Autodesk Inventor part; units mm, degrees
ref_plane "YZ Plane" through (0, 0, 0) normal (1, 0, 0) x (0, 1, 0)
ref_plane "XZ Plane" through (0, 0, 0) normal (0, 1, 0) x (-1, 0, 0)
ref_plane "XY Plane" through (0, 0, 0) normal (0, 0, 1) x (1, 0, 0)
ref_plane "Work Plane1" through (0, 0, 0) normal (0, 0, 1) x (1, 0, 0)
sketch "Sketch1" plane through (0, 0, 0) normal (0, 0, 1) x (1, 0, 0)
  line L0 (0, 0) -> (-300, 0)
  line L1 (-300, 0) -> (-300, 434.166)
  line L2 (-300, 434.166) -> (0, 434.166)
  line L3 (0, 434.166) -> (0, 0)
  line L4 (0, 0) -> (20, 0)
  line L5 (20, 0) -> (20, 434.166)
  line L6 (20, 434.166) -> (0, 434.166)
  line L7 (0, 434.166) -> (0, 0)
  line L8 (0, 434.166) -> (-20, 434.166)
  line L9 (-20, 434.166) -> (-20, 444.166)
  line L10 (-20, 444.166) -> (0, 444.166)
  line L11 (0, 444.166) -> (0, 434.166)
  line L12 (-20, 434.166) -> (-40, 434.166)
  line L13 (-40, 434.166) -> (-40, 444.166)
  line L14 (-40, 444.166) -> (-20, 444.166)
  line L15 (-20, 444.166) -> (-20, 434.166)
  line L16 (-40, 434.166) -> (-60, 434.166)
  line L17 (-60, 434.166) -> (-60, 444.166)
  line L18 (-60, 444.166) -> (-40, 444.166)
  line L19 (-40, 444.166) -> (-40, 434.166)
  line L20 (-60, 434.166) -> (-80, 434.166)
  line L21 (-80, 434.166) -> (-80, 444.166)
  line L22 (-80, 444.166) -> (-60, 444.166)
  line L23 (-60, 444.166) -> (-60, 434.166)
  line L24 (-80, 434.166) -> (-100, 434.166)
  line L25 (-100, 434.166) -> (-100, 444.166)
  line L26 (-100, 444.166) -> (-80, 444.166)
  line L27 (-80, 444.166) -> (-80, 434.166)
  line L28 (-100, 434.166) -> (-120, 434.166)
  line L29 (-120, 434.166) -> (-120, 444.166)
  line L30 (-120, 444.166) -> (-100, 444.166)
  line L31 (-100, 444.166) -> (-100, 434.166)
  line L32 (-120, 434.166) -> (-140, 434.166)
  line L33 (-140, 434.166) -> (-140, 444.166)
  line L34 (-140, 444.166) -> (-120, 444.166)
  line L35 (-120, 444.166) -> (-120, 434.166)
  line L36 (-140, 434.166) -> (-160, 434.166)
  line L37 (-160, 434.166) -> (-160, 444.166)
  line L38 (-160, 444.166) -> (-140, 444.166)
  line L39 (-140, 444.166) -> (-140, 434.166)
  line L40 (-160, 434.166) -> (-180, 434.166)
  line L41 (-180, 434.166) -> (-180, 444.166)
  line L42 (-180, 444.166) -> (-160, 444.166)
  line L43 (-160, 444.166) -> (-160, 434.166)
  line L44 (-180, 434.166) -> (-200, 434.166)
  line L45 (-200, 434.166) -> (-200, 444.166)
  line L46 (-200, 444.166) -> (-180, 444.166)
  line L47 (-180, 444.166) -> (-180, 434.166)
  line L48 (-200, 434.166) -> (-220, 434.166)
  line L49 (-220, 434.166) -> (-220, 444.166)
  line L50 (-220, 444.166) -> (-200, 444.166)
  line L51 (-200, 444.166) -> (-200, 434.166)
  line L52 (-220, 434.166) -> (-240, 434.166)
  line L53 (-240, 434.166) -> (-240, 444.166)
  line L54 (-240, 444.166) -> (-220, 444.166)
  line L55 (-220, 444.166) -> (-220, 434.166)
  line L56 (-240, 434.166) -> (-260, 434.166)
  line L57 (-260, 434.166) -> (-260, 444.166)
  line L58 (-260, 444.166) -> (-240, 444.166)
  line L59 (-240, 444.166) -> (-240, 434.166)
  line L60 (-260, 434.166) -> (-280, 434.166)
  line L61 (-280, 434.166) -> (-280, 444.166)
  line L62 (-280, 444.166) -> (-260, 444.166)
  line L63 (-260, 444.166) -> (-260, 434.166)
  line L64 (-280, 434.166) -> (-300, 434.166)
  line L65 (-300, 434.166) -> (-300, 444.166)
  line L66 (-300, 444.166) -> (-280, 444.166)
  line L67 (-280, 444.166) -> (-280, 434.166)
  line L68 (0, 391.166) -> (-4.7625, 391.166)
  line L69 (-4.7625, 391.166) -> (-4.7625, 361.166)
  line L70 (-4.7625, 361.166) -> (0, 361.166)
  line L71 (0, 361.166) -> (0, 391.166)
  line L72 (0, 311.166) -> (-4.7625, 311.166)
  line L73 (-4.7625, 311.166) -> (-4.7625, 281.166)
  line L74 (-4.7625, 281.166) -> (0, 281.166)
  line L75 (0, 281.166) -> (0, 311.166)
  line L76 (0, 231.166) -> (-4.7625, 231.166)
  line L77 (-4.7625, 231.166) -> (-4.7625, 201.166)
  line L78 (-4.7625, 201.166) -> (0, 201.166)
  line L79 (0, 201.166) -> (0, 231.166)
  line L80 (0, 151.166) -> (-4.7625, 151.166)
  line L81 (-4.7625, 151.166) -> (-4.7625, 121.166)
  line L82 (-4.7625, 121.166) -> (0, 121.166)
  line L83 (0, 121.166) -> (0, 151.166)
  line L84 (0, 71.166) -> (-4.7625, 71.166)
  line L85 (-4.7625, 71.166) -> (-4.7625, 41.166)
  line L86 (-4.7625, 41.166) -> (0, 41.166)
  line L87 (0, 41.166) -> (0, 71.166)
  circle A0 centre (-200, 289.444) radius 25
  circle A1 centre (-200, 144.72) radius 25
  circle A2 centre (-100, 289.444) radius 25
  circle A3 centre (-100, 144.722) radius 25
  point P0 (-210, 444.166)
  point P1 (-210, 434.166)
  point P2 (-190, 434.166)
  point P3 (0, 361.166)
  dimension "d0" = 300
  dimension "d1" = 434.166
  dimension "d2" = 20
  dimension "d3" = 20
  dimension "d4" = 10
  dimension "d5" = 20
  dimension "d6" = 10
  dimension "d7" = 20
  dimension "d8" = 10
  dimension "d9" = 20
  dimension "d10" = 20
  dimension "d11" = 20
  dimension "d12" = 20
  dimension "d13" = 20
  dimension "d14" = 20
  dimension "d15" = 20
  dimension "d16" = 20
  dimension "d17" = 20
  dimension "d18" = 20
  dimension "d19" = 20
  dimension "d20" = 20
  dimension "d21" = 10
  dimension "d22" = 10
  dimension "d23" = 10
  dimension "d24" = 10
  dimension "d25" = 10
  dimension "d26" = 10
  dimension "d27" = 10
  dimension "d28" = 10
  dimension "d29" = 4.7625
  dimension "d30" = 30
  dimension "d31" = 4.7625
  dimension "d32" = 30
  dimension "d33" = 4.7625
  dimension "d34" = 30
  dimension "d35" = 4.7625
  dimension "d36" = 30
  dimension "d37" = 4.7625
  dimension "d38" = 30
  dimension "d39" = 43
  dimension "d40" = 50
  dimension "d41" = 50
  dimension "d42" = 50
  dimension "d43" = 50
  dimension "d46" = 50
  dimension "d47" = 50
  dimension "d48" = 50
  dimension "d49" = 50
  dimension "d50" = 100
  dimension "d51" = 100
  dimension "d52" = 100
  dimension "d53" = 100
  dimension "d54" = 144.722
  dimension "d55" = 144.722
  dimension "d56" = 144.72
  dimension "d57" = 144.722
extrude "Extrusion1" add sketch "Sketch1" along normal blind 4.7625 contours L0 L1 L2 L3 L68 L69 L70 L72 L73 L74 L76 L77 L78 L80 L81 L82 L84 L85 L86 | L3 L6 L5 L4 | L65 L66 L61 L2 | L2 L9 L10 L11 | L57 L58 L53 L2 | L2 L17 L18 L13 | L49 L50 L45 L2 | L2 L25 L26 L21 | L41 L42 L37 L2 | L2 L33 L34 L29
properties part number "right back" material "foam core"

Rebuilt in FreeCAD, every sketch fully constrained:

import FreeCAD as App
import Part
import Sketcher

V = App.Vector
Q = App.Units.Quantity

doc = App.newDocument("Part")
body = doc.addObject("PartDesign::Body", "Body")

# Sketch on XY plane
sketch1 = body.newObject("Sketcher::SketchObject", "Sketch")
sketch1.AttachmentSupport = (doc.getObject("XY_Plane"), [""])
sketch1.MapMode = "FlatFace"
sketch1.addGeometry([
    Part.LineSegment(V(-300, 0, 0), V(20, 0, 0)),  # 0
    Part.LineSegment(V(20, 0, 0), V(20, 434.2, 0)),  # 1
    Part.LineSegment(V(20, 434.2, 0), V(0, 434.2, 0)),  # 2
    Part.LineSegment(V(0, 434.2, 0), V(0, 444.2, 0)),  # 3
    Part.LineSegment(V(0, 444.2, 0), V(-20, 444.2, 0)),  # 4
    Part.LineSegment(V(-20, 444.2, 0), V(-20, 434.2, 0)),  # 5
    Part.LineSegment(V(-20, 434.2, 0), V(-40, 434.2, 0)),  # 6
    Part.LineSegment(V(-40, 434.2, 0), V(-40, 444.2, 0)),  # 7
    Part.LineSegment(V(-40, 444.2, 0), V(-60, 444.2, 0)),  # 8
    Part.LineSegment(V(-60, 444.2, 0), V(-60, 434.2, 0)),  # 9
    Part.LineSegment(V(-60, 434.2, 0), V(-80, 434.2, 0)),  # 10
    Part.LineSegment(V(-80, 434.2, 0), V(-80, 444.2, 0)),  # 11
    Part.LineSegment(V(-80, 444.2, 0), V(-100, 444.2, 0)),  # 12
    Part.LineSegment(V(-100, 444.2, 0), V(-100, 434.2, 0)),  # 13
    Part.LineSegment(V(-100, 434.2, 0), V(-120, 434.2, 0)),  # 14
    Part.LineSegment(V(-120, 434.2, 0), V(-120, 444.2, 0)),  # 15
    Part.LineSegment(V(-120, 444.2, 0), V(-140, 444.2, 0)),  # 16
    Part.LineSegment(V(-140, 444.2, 0), V(-140, 434.2, 0)),  # 17
    Part.LineSegment(V(-140, 434.2, 0), V(-160, 434.2, 0)),  # 18
    Part.LineSegment(V(-160, 434.2, 0), V(-160, 444.2, 0)),  # 19
    Part.LineSegment(V(-160, 444.2, 0), V(-180, 444.2, 0)),  # 20
    Part.LineSegment(V(-180, 444.2, 0), V(-180, 434.2, 0)),  # 21
    Part.LineSegment(V(-180, 434.2, 0), V(-200, 434.2, 0)),  # 22
    Part.LineSegment(V(-200, 434.2, 0), V(-200, 444.2, 0)),  # 23
    Part.LineSegment(V(-200, 444.2, 0), V(-220, 444.2, 0)),  # 24
    Part.LineSegment(V(-220, 444.2, 0), V(-220, 434.2, 0)),  # 25
    Part.LineSegment(V(-220, 434.2, 0), V(-240, 434.2, 0)),  # 26
    Part.LineSegment(V(-240, 434.2, 0), V(-240, 444.2, 0)),  # 27
    Part.LineSegment(V(-240, 444.2, 0), V(-260, 444.2, 0)),  # 28
    Part.LineSegment(V(-260, 444.2, 0), V(-260, 434.2, 0)),  # 29
    Part.LineSegment(V(-260, 434.2, 0), V(-280, 434.2, 0)),  # 30
    Part.LineSegment(V(-280, 434.2, 0), V(-280, 444.2, 0)),  # 31
    Part.LineSegment(V(-280, 444.2, 0), V(-300, 444.2, 0)),  # 32
    Part.LineSegment(V(-300, 444.2, 0), V(-300, 0, 0)),  # 33
    Part.LineSegment(V(-4.8, 391.2, 0), V(0, 391.2, 0)),  # 34
    Part.LineSegment(V(0, 391.2, 0), V(0, 361.2, 0)),  # 35
    Part.LineSegment(V(0, 361.2, 0), V(-4.8, 361.2, 0)),  # 36
    Part.LineSegment(V(-4.8, 361.2, 0), V(-4.8, 391.2, 0)),  # 37
    Part.LineSegment(V(-4.8, 311.2, 0), V(0, 311.2, 0)),  # 38
    Part.LineSegment(V(0, 311.2, 0), V(0, 281.2, 0)),  # 39
    Part.LineSegment(V(0, 281.2, 0), V(-4.8, 281.2, 0)),  # 40
    Part.LineSegment(V(-4.8, 281.2, 0), V(-4.8, 311.2, 0)),  # 41
    Part.LineSegment(V(-4.8, 231.2, 0), V(0, 231.2, 0)),  # 42
    Part.LineSegment(V(0, 231.2, 0), V(0, 201.2, 0)),  # 43
    Part.LineSegment(V(0, 201.2, 0), V(-4.8, 201.2, 0)),  # 44
    Part.LineSegment(V(-4.8, 201.2, 0), V(-4.8, 231.2, 0)),  # 45
    Part.LineSegment(V(-4.8, 151.2, 0), V(0, 151.2, 0)),  # 46
    Part.LineSegment(V(0, 151.2, 0), V(0, 121.2, 0)),  # 47
    Part.LineSegment(V(0, 121.2, 0), V(-4.8, 121.2, 0)),  # 48
    Part.LineSegment(V(-4.8, 121.2, 0), V(-4.8, 151.2, 0)),  # 49
    Part.LineSegment(V(-4.8, 71.2, 0), V(0, 71.2, 0)),  # 50
    Part.LineSegment(V(0, 71.2, 0), V(0, 41.2, 0)),  # 51
    Part.LineSegment(V(0, 41.2, 0), V(-4.8, 41.2, 0)),  # 52
    Part.LineSegment(V(-4.8, 41.2, 0), V(-4.8, 71.2, 0)),  # 53
    Part.Circle(V(-200, 144.7, 0), V(0, 0, 1), 25),  # 54
    Part.Circle(V(-100, 144.7, 0), V(0, 0, 1), 25),  # 55
    Part.Circle(V(-200, 289.4, 0), V(0, 0, 1), 25),  # 56
    Part.Circle(V(-100, 289.4, 0), V(0, 0, 1), 25),  # 57
], False)
sketch1.addConstraint([
    Sketcher.Constraint("Coincident", 0, 2, 1, 1),
    Sketcher.Constraint("Coincident", 1, 2, 2, 1),
    Sketcher.Constraint("Coincident", 2, 2, 3, 1),
    Sketcher.Constraint("Coincident", 3, 2, 4, 1),
    Sketcher.Constraint("Coincident", 4, 2, 5, 1),
    Sketcher.Constraint("Coincident", 5, 2, 6, 1),
    Sketcher.Constraint("Coincident", 6, 2, 7, 1),
    Sketcher.Constraint("Coincident", 7, 2, 8, 1),
    Sketcher.Constraint("Coincident", 8, 2, 9, 1),
    Sketcher.Constraint("Coincident", 9, 2, 10, 1),
    Sketcher.Constraint("Coincident", 10, 2, 11, 1),
    Sketcher.Constraint("Coincident", 11, 2, 12, 1),
    Sketcher.Constraint("Coincident", 12, 2, 13, 1),
    Sketcher.Constraint("Coincident", 13, 2, 14, 1),
    Sketcher.Constraint("Coincident", 14, 2, 15, 1),
    Sketcher.Constraint("Coincident", 15, 2, 16, 1),
    Sketcher.Constraint("Coincident", 16, 2, 17, 1),
    Sketcher.Constraint("Coincident", 17, 2, 18, 1),
    Sketcher.Constraint("Coincident", 18, 2, 19, 1),
    Sketcher.Constraint("Coincident", 19, 2, 20, 1),
    Sketcher.Constraint("Coincident", 20, 2, 21, 1),
    Sketcher.Constraint("Coincident", 21, 2, 22, 1),
    Sketcher.Constraint("Coincident", 22, 2, 23, 1),
    Sketcher.Constraint("Coincident", 23, 2, 24, 1),
    Sketcher.Constraint("Coincident", 24, 2, 25, 1),
    Sketcher.Constraint("Coincident", 25, 2, 26, 1),
    Sketcher.Constraint("Coincident", 26, 2, 27, 1),
    Sketcher.Constraint("Coincident", 27, 2, 28, 1),
    Sketcher.Constraint("Coincident", 28, 2, 29, 1),
    Sketcher.Constraint("Coincident", 29, 2, 30, 1),
    Sketcher.Constraint("Coincident", 30, 2, 31, 1),
    Sketcher.Constraint("Coincident", 31, 2, 32, 1),
    Sketcher.Constraint("Coincident", 32, 2, 33, 1),
    Sketcher.Constraint("Coincident", 33, 2, 0, 1),
    Sketcher.Constraint("Coincident", 34, 2, 35, 1),
    Sketcher.Constraint("Coincident", 35, 2, 36, 1),
    Sketcher.Constraint("Coincident", 36, 2, 37, 1),
    Sketcher.Constraint("Coincident", 37, 2, 34, 1),
    Sketcher.Constraint("Coincident", 38, 2, 39, 1),
    Sketcher.Constraint("Coincident", 39, 2, 40, 1),
    Sketcher.Constraint("Coincident", 40, 2, 41, 1),
    Sketcher.Constraint("Coincident", 41, 2, 38, 1),
    Sketcher.Constraint("Coincident", 42, 2, 43, 1),
    Sketcher.Constraint("Coincident", 43, 2, 44, 1),
    Sketcher.Constraint("Coincident", 44, 2, 45, 1),
    Sketcher.Constraint("Coincident", 45, 2, 42, 1),
    Sketcher.Constraint("Coincident", 46, 2, 47, 1),
    Sketcher.Constraint("Coincident", 47, 2, 48, 1),
    Sketcher.Constraint("Coincident", 48, 2, 49, 1),
    Sketcher.Constraint("Coincident", 49, 2, 46, 1),
    Sketcher.Constraint("Coincident", 50, 2, 51, 1),
    Sketcher.Constraint("Coincident", 51, 2, 52, 1),
    Sketcher.Constraint("Coincident", 52, 2, 53, 1),
    Sketcher.Constraint("Coincident", 53, 2, 50, 1),
    Sketcher.Constraint("Horizontal", 0),
    Sketcher.Constraint("Vertical", 1),
    Sketcher.Constraint("Horizontal", 2),
    Sketcher.Constraint("Vertical", 3),
    Sketcher.Constraint("Horizontal", 4),
    Sketcher.Constraint("Vertical", 5),
    Sketcher.Constraint("Horizontal", 6),
    Sketcher.Constraint("Vertical", 7),
    Sketcher.Constraint("Horizontal", 8),
    Sketcher.Constraint("Vertical", 9),
    Sketcher.Constraint("Horizontal", 10),
    Sketcher.Constraint("Vertical", 11),
    Sketcher.Constraint("Horizontal", 12),
    Sketcher.Constraint("Vertical", 13),
    Sketcher.Constraint("Horizontal", 14),
    Sketcher.Constraint("Vertical", 15),
    Sketcher.Constraint("Horizontal", 16),
    Sketcher.Constraint("Vertical", 17),
    Sketcher.Constraint("Horizontal", 18),
    Sketcher.Constraint("Vertical", 19),
    Sketcher.Constraint("Horizontal", 20),
    Sketcher.Constraint("Vertical", 21),
    Sketcher.Constraint("Horizontal", 22),
    Sketcher.Constraint("Vertical", 23),
    Sketcher.Constraint("Horizontal", 24),
    Sketcher.Constraint("Vertical", 25),
    Sketcher.Constraint("Horizontal", 26),
    Sketcher.Constraint("Vertical", 27),
    Sketcher.Constraint("Horizontal", 28),
    Sketcher.Constraint("Vertical", 29),
    Sketcher.Constraint("Horizontal", 30),
    Sketcher.Constraint("Vertical", 31),
    Sketcher.Constraint("Horizontal", 32),
    Sketcher.Constraint("Vertical", 33),
    Sketcher.Constraint("Horizontal", 34),
    Sketcher.Constraint("Vertical", 35),
    Sketcher.Constraint("Horizontal", 36),
    Sketcher.Constraint("Vertical", 37),
    Sketcher.Constraint("Horizontal", 38),
    Sketcher.Constraint("Vertical", 39),
    Sketcher.Constraint("Horizontal", 40),
    Sketcher.Constraint("Vertical", 41),
    Sketcher.Constraint("Horizontal", 42),
    Sketcher.Constraint("Vertical", 43),
    Sketcher.Constraint("Horizontal", 44),
    Sketcher.Constraint("Vertical", 45),
    Sketcher.Constraint("Horizontal", 46),
    Sketcher.Constraint("Vertical", 47),
    Sketcher.Constraint("Horizontal", 48),
    Sketcher.Constraint("Vertical", 49),
    Sketcher.Constraint("Horizontal", 50),
    Sketcher.Constraint("Vertical", 51),
    Sketcher.Constraint("Horizontal", 52),
    Sketcher.Constraint("Vertical", 53),
    Sketcher.Constraint("Equal", 54, 55),
    Sketcher.Constraint("Equal", 55, 56),
    Sketcher.Constraint("Equal", 56, 57),
    Sketcher.Constraint("Symmetric", 1, 2, 5, 2, -2),
    Sketcher.Constraint("PointOnObject", 0, 2, -1),
    Sketcher.Constraint("PointOnObject", 2, 2, -2),
    Sketcher.Constraint("PointOnObject", 34, 2, -2),
    Sketcher.Constraint("PointOnObject", 38, 2, -2),
    Sketcher.Constraint("PointOnObject", 42, 2, -2),
    Sketcher.Constraint("PointOnObject", 46, 2, -2),
    Sketcher.Constraint("PointOnObject", 50, 2, -2),
    Sketcher.Constraint("Horizontal", 56, 3, 57, 3),
    Sketcher.Constraint("Horizontal", 4, 2, 7, 2),
    Sketcher.Constraint("Horizontal", 6, 2, 9, 2),
    Sketcher.Constraint("Horizontal", 8, 2, 11, 2),
    Sketcher.Constraint("Horizontal", 10, 2, 13, 2),
    Sketcher.Constraint("Horizontal", 12, 2, 15, 2),
    Sketcher.Constraint("Horizontal", 14, 2, 17, 2),
    Sketcher.Constraint("Horizontal", 16, 2, 19, 2),
    Sketcher.Constraint("Horizontal", 18, 2, 21, 2),
    Sketcher.Constraint("Horizontal", 20, 2, 23, 2),
    Sketcher.Constraint("Horizontal", 22, 2, 25, 2),
    Sketcher.Constraint("Horizontal", 24, 2, 27, 2),
    Sketcher.Constraint("Horizontal", 26, 2, 29, 2),
    Sketcher.Constraint("Horizontal", 28, 2, 31, 2),
    Sketcher.Constraint("Vertical", 54, 3, 56, 3),
    Sketcher.Constraint("Vertical", 55, 3, 57, 3),
    Sketcher.Constraint("Vertical", 57, 3, 12, 2),
    Sketcher.Constraint("Vertical", 56, 3, 22, 2),
    Sketcher.Constraint("Vertical", 37, 2, 40, 2),
    Sketcher.Constraint("Vertical", 41, 2, 44, 2),
    Sketcher.Constraint("Vertical", 45, 2, 48, 2),
    Sketcher.Constraint("Vertical", 49, 2, 52, 2),
    Sketcher.Constraint("Equal", 4, 6),
    Sketcher.Constraint("Equal", 6, 8),
    Sketcher.Constraint("Equal", 8, 10),
    Sketcher.Constraint("Equal", 10, 12),
    Sketcher.Constraint("Equal", 12, 14),
    Sketcher.Constraint("Equal", 14, 16),
    Sketcher.Constraint("Equal", 16, 18),
    Sketcher.Constraint("Equal", 18, 20),
    Sketcher.Constraint("Equal", 20, 22),
    Sketcher.Constraint("Equal", 22, 24),
    Sketcher.Constraint("Equal", 24, 26),
    Sketcher.Constraint("Equal", 26, 28),
    Sketcher.Constraint("Equal", 28, 30),
    Sketcher.Constraint("Equal", 30, 32),
    Sketcher.Constraint("Equal", 37, 39),
    Sketcher.Constraint("Equal", 41, 43),
    Sketcher.Constraint("Equal", 45, 47),
    Sketcher.Constraint("Equal", 49, 51),
    Sketcher.Constraint("Diameter", 54, Q("50 mm")),
    Sketcher.Constraint("DistanceX", 2, 2, 2, 1, Q("20 mm")),
    Sketcher.Constraint("DistanceY", 3, 1, 3, 2, Q("10 mm")),
    Sketcher.Constraint("DistanceY", 35, 2, 35, 1, Q("30 mm")),
    Sketcher.Constraint("DistanceY", 34, 2, 2, 2, Q("43 mm")),
    Sketcher.Constraint("DistanceY", 38, 2, 35, 2, Q("50 mm")),
    Sketcher.Constraint("DistanceY", 42, 2, 39, 2, Q("50 mm")),
    Sketcher.Constraint("DistanceY", 46, 2, 43, 2, Q("50 mm")),
    Sketcher.Constraint("DistanceY", 50, 2, 47, 2, Q("50 mm")),
    Sketcher.Constraint("DistanceY", 1, 1, 1, 2, Q("434.166 mm")),
    Sketcher.Constraint("DistanceY", -1, 1, 54, 3, Q("144.72 mm")),
    Sketcher.Constraint("DistanceX", 34, 1, 34, 2, Q("4.7625 mm")),
    Sketcher.Constraint("DistanceY", -1, 1, 55, 3, Q("144.722 mm")),
    Sketcher.Constraint("DistanceY", 55, 3, 56, 3, Q("144.722 mm")),
])
pad1 = body.newObject("PartDesign::Pad", "Pad")
pad1.Profile = sketch1
pad1.Length = 4.7625

doc.recompute()
